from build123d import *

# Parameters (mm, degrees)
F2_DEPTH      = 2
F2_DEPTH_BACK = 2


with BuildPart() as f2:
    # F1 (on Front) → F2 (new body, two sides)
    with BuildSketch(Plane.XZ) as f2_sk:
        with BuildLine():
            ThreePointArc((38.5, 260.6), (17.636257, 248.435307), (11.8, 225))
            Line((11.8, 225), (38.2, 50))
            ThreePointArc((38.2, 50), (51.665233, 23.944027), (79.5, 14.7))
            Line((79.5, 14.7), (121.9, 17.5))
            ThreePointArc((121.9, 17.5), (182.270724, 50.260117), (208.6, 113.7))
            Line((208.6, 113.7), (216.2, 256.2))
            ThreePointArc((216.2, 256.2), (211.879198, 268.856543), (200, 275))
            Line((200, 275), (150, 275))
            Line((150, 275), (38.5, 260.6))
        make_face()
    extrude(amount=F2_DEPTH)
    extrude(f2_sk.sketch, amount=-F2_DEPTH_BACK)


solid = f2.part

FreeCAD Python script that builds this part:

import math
import FreeCAD as App
import Part
import Sketcher

V = App.Vector

doc = App.newDocument("Part")
body = doc.addObject("PartDesign::Body", "Body")

# Sketch on XZ plane
sketch1 = body.newObject("Sketcher::SketchObject", "Sketch")
sketch1.AttachmentSupport = (doc.getObject("XZ_Plane"), [""])
sketch1.MapMode = "FlatFace"
sketch1.addGeometry([
    Part.ArcOfCircle(Part.Circle(V(42.477161, 229.804629, 0), V(0, 0, 1), 31.05113), math.radians(97.358903), math.radians(188.901301)),  # 0
    Part.LineSegment(V(11.8, 225, 0), V(38.2, 50, 0)),  # 1
    Part.ArcOfCircle(Part.Circle(V(76.936992, 53.511268, 0), V(0, 0, 1), 38.895804), math.radians(-174.820647), math.radians(-86.221802)),  # 2
    Part.LineSegment(V(79.5, 14.7, 0), V(121.9, 17.5, 0)),  # 3
    Part.ArcOfCircle(Part.Circle(V(105.795861, 119.182888, 0), V(0, 0, 1), 102.950245), math.radians(-81.000466), math.radians(-3.052883)),  # 4
    Part.LineSegment(V(208.6, 113.7, 0), V(216.2, 256.2, 0)),  # 5
    Part.ArcOfCircle(Part.Circle(V(198.299288, 257.154706, 0), V(0, 0, 1), 17.926153), math.radians(-3.052886), math.radians(84.555977)),  # 6
    Part.LineSegment(V(200, 275, 0), V(150, 275, 0)),  # 7
    Part.LineSegment(V(150, 275, 0), V(38.5, 260.6, 0)),  # 8
], False)
sketch1.addConstraint([
    Sketcher.Constraint("Coincident", 0, 2, 1, 1),
    Sketcher.Constraint("Coincident", 1, 2, 2, 1),
    Sketcher.Constraint("Tangent", 2, 2, 3, 1),
    Sketcher.Constraint("Coincident", 3, 2, 4, 1),
    Sketcher.Constraint("Tangent", 4, 2, 5, 1),
    Sketcher.Constraint("Tangent", 5, 2, 6, 1),
    Sketcher.Constraint("Coincident", 6, 2, 7, 1),
    Sketcher.Constraint("Coincident", 7, 2, 8, 1),
    Sketcher.Constraint("Tangent", 8, 2, 0, 1),
    Sketcher.Constraint("Horizontal", 7),
    Sketcher.Constraint("DistanceX", 7, 2, 7, 1, 50.0),
    Sketcher.Constraint("DistanceY", -1, 1, 0, 2, 225.0),
    Sketcher.Constraint("DistanceY", -1, 1, 1, 2, 50.0),
    Sketcher.Constraint("DistanceX", -1, 1, 6, 2, 200.0),
    Sketcher.Constraint("DistanceY", -1, 1, 6, 2, 275.0),
    Sketcher.Constraint("DistanceY", 2, 2, 4, 2, 99.0),
    Sketcher.Constraint("DistanceX", -1, 1, 0, 2, 11.8),
    Sketcher.Constraint("DistanceX", -1, 1, 1, 2, 38.2),
    Sketcher.Constraint("DistanceX", -1, 1, 2, 2, 79.5),
    Sketcher.Constraint("DistanceY", -1, 1, 2, 2, 14.7),
    Sketcher.Constraint("DistanceX", -1, 1, 3, 2, 121.9),
    Sketcher.Constraint("DistanceY", -1, 1, 3, 2, 17.5),
    Sketcher.Constraint("DistanceX", -1, 1, 4, 2, 208.6),
    Sketcher.Constraint("DistanceX", -1, 1, 5, 2, 216.2),
    Sketcher.Constraint("DistanceY", -1, 1, 5, 2, 256.2),
    Sketcher.Constraint("DistanceX", -1, 1, 8, 2, 38.5),
    Sketcher.Constraint("DistanceY", -1, 1, 8, 2, 260.6),
])
pad1 = body.newObject("PartDesign::Pad", "Pad")
pad1.Profile = sketch1
pad1.Type = "TwoLengths"
pad1.Length = 2
pad1.Length2 = 2

doc.recompute()
